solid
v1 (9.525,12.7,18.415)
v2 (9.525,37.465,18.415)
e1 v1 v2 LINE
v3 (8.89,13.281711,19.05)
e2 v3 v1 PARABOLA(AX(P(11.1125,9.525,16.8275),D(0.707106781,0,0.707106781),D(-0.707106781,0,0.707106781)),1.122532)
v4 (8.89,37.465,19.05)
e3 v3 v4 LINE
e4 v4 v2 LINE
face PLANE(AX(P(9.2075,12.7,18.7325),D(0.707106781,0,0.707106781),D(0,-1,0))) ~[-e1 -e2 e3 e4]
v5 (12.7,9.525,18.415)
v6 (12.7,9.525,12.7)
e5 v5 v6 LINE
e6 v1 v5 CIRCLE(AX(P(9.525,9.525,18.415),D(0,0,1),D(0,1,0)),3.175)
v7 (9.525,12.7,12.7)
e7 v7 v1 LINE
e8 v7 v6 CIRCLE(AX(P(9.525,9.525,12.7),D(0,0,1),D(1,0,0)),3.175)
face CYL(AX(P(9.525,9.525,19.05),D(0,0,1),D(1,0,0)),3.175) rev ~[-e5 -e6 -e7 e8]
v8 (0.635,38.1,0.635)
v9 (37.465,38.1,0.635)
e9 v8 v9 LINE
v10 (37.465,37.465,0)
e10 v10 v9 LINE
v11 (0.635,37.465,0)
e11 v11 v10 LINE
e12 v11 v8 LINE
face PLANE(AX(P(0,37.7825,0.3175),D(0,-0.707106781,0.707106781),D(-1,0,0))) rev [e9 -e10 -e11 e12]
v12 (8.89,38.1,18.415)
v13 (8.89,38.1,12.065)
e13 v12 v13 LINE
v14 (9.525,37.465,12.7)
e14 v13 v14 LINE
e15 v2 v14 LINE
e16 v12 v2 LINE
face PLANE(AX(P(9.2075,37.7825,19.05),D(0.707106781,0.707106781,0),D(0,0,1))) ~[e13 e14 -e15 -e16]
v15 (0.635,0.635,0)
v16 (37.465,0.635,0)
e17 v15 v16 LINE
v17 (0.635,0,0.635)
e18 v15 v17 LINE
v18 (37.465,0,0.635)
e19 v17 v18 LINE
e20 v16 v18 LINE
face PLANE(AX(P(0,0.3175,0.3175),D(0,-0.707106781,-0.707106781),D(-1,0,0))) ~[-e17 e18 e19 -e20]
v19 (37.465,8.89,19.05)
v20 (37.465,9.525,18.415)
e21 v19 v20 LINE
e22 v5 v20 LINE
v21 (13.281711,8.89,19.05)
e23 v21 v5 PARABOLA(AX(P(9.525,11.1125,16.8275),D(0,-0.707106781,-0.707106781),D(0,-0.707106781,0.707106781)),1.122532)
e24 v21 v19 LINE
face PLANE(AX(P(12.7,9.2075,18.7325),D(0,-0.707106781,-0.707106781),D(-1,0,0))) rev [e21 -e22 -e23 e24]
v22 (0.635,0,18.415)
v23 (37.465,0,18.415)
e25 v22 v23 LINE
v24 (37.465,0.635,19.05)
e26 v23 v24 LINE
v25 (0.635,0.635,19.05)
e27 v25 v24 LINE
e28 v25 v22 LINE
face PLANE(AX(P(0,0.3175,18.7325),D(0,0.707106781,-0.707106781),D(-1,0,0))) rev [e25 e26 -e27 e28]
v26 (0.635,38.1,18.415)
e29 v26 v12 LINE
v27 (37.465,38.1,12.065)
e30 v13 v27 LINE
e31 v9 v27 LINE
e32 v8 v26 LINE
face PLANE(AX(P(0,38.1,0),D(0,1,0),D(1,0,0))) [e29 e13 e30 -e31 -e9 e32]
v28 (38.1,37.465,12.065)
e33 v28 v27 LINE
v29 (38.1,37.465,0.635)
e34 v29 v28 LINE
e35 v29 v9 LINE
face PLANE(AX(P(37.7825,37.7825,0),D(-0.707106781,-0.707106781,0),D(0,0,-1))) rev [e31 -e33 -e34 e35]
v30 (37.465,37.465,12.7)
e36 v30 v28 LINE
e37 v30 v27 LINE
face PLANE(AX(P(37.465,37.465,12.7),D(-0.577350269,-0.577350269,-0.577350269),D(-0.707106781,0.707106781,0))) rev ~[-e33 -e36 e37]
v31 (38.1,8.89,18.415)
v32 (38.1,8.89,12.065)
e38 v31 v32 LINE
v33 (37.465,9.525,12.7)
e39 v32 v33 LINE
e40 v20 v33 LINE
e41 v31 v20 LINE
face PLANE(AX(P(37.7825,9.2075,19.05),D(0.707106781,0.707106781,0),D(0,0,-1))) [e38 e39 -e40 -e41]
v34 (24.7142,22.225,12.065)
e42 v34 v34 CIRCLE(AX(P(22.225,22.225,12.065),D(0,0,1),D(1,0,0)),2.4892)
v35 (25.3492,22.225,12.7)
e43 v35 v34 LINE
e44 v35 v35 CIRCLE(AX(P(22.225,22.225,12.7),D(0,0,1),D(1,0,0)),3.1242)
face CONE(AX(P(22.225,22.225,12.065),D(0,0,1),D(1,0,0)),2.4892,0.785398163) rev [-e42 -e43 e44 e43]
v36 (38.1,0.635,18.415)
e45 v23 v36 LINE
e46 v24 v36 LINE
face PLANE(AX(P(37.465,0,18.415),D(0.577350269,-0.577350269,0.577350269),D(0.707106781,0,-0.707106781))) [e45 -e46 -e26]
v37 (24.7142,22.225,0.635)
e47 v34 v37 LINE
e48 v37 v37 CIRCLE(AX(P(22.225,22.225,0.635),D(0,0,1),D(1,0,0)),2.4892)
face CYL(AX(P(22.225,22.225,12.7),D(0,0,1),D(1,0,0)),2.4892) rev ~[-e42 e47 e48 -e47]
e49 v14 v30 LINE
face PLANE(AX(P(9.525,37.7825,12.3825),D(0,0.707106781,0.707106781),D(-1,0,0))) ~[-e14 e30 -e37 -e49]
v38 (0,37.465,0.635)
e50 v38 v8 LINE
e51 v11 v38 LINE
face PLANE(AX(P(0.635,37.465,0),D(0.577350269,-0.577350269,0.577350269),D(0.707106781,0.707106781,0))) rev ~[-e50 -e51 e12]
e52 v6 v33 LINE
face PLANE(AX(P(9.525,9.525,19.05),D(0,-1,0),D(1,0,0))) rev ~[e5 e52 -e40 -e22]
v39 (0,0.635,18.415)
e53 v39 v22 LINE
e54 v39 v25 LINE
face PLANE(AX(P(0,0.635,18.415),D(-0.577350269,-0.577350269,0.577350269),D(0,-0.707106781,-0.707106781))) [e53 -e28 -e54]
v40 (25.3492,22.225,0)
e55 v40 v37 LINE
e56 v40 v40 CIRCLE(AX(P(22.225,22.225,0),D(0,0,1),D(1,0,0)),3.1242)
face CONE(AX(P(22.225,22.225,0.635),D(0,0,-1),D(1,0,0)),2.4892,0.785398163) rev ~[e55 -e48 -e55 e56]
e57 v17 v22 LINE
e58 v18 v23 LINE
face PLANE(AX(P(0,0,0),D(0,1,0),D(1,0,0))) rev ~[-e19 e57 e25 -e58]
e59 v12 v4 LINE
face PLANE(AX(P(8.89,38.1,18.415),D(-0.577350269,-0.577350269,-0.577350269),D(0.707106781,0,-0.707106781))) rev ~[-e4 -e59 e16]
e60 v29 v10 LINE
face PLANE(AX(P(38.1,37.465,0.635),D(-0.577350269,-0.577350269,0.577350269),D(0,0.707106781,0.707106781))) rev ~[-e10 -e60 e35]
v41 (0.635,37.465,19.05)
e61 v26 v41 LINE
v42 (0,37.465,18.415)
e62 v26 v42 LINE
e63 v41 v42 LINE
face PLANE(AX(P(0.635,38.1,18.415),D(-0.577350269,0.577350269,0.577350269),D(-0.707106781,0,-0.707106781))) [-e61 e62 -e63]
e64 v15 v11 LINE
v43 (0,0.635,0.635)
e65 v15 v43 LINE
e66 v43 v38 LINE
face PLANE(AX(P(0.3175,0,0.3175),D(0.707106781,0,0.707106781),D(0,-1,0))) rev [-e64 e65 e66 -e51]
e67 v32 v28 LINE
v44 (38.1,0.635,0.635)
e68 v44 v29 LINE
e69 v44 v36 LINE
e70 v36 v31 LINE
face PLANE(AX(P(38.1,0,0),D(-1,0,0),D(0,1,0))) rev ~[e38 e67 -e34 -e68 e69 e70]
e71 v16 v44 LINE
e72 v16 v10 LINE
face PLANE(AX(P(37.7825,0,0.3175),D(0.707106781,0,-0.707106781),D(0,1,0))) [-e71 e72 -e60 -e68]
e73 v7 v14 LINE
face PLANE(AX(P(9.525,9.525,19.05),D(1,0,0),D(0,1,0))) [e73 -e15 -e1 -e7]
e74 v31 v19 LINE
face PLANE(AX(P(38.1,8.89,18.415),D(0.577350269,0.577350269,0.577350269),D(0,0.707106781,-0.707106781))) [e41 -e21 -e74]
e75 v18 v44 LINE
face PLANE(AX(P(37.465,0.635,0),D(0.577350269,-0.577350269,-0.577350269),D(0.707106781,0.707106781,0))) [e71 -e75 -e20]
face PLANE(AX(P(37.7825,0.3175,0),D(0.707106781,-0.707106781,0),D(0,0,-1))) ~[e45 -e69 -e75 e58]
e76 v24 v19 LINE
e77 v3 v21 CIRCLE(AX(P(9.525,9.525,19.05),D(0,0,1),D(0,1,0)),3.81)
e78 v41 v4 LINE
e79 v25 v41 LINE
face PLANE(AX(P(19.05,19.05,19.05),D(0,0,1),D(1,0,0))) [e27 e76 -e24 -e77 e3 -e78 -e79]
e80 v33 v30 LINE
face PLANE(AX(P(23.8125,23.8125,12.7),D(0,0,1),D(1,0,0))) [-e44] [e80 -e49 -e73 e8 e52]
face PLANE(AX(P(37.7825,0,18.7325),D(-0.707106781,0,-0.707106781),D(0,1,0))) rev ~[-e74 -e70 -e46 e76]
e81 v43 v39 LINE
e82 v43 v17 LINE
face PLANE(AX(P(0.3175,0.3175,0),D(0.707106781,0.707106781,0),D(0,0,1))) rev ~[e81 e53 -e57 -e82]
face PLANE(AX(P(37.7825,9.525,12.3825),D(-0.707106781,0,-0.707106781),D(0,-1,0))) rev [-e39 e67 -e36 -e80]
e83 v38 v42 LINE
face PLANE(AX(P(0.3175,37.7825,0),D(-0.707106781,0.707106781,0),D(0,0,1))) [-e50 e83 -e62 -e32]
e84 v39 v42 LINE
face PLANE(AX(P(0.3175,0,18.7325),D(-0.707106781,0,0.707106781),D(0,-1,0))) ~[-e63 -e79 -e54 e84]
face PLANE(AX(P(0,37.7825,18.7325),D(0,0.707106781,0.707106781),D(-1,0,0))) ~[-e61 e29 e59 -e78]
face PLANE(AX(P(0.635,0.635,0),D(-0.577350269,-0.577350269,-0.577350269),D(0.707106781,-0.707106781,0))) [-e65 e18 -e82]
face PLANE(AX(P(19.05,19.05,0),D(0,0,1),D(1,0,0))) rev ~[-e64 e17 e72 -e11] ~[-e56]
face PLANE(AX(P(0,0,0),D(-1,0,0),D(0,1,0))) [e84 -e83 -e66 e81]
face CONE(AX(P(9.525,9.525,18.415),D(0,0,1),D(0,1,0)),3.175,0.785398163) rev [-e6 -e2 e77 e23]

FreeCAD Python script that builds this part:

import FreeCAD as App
import Part
import Sketcher
from FreeCAD import Vector
Q = App.Units.Quantity


def edges_at(feature, points):
    """Names of the edges that pass closest to the given points."""
    edges = feature.Shape.Edges
    near = lambda p: min(range(len(edges)), key=lambda i: edges[i].distToShape(Part.Vertex(*p))[0])
    return sorted({f"Edge{near(p) + 1}" for p in points})


def add_polygon(sketch, points):
    """Adds a closed chain of lines whose ends are joined by coincident constraints."""
    first, n = sketch.GeometryCount, len(points)
    for a, b in zip(points, points[1:] + points[:1]):
        sketch.addGeometry(Part.LineSegment(App.Vector(*a, 0), App.Vector(*b, 0)), False)
    for i in range(n):
        sketch.addConstraint(Sketcher.Constraint("Coincident", first + i, 2, first + (i + 1) % n, 1))

doc = App.newDocument("Part")
body = doc.addObject("PartDesign::Body", "Body")

# Sketch on XY plane
sketch1 = body.newObject("Sketcher::SketchObject", "Sketch")
sketch1.AttachmentSupport = (doc.getObject("XY_Plane"), [""])
sketch1.MapMode = "FlatFace"
add_polygon(sketch1, [(0, 38), (0, 0), (38, 0), (38, 38)])  # lines 0-3
sketch1.addConstraint([
    Sketcher.Constraint("Vertical", 0),
    Sketcher.Constraint("Horizontal", 1),
    Sketcher.Constraint("Vertical", 2),
    Sketcher.Constraint("Horizontal", 3),
    Sketcher.Constraint("Coincident", 0, 2, -1, 1),
    Sketcher.Constraint("Equal", 3, 0),
    Sketcher.Constraint("DistanceX", 1, 1, 1, 2, Q("1.5 in")),
])
pad1 = body.newObject("PartDesign::Pad", "Pad")
pad1.Profile = sketch1
pad1.Length = Q("0.75 in")

# Sketch on XY plane
sketch2 = body.newObject("Sketcher::SketchObject", "Sketch001")
sketch2.AttachmentSupport = (doc.getObject("XY_Plane"), [""])
sketch2.MapMode = "FlatFace"
sketch2.AttachmentOffset = App.Placement(Vector(0, 0, 0.75 * 25.4), App.Rotation())
add_polygon(sketch2, [(10, 38), (10, 10), (38, 10), (38, 38)])  # lines 0-3
sketch2.addConstraint([
    Sketcher.Constraint("Vertical", 0),
    Sketcher.Constraint("Horizontal", 1),
    Sketcher.Constraint("Vertical", 2),
    Sketcher.Constraint("Horizontal", 3),
    Sketcher.Constraint("Equal", 3, 0),
    Sketcher.Constraint("DistanceX", -1, 1, 1, 2, Q("1.5 in")),
    Sketcher.Constraint("DistanceY", -1, 1, 2, 2, Q("1.5 in")),
    Sketcher.Constraint("DistanceX", 1, 1, 1, 2, Q("1.125 in")),
])
pocket1 = body.newObject("PartDesign::Pocket", "Pocket")
pocket1.Profile = sketch2
pocket1.Length = Q("0.25 in")

# Sketch on XY plane
sketch3 = body.newObject("Sketcher::SketchObject", "Sketch002")
sketch3.AttachmentSupport = (doc.getObject("XY_Plane"), [""])
sketch3.MapMode = "FlatFace"
sketch3.AttachmentOffset = App.Placement(Vector(0, 0, 0.5 * 25.4), App.Rotation())
sketch3.addGeometry(Part.Circle(Vector(22.2, 22.2, 0), Vector(0, 0, 1), 2.5), False)
sketch3.addConstraint([
    Sketcher.Constraint("Diameter", 0, Q("0.196 in")),
    Sketcher.Constraint("DistanceX", -1, 1, 0, 3, Q("0.875 in")),
    Sketcher.Constraint("DistanceY", -1, 1, 0, 3, Q("0.875 in")),
])
pocket2 = body.newObject("PartDesign::Pocket", "Pocket001")
pocket2.Profile = sketch3
pocket2.Length = Q("1 in")

# Sketch on XY plane
sketch4 = body.newObject("Sketcher::SketchObject", "Sketch003")
sketch4.AttachmentSupport = (doc.getObject("XY_Plane"), [""])
sketch4.MapMode = "FlatFace"
sketch4.AttachmentOffset = App.Placement(Vector(0, 0, 0.75 * 25.4), App.Rotation())
sketch4.addGeometry(Part.Circle(Vector(9.5, 9.5, 0), Vector(0, 0, 1), 3.2), False)
sketch4.addConstraint([
    Sketcher.Constraint("Diameter", 0, Q("0.25 in")),
    Sketcher.Constraint("DistanceX", -1, 1, 0, 3, Q("0.375 in")),
    Sketcher.Constraint("DistanceY", -1, 1, 0, 3, Q("0.375 in")),
])
pocket3 = body.newObject("PartDesign::Pocket", "Pocket002")
pocket3.Profile = sketch4
pocket3.Length = Q("0.25 in")
doc.recompute()

chamfer = body.newObject("PartDesign::Chamfer", "Chamfer")
chamfer.Base = (pocket3, edges_at(pocket3, [
    (9.525, 25.4, 19.05),
    (7.28, 7.28, 19.05),
    (25.4, 9.525, 19.05),
    (38.1, 4.763, 19.05),
    (19.05, 0, 19.05),
    (0, 19.05, 19.05),
    (4.763, 38.1, 19.05),
    (0, 38.1, 9.525),
    (0, 0, 9.525),
    (0, 19.05, 0),
    (38.1, 0, 9.525),
    (19.05, 0, 0),
    (19.05, 38.1, 0),
    (38.1, 19.05, 0),
    (19.736, 22.225, 0),
    (38.1, 38.1, 6.35),
    (38.1, 23.812, 12.7),
    (38.1, 9.525, 15.875),
    (9.525, 38.1, 15.875),
    (23.812, 38.1, 12.7),
    (19.736, 22.225, 12.7),
]))
chamfer.Size = Q("0.025 in")

doc.recompute()
